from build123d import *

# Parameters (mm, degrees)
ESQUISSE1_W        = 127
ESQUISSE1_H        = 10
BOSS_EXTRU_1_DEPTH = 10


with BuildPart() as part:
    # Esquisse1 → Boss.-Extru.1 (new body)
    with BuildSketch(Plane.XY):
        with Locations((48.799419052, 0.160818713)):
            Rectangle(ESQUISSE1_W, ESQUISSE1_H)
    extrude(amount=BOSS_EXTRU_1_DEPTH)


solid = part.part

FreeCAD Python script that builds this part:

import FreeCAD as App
import Part
import Sketcher
from FreeCAD import Vector
Q = App.Units.Quantity

doc = App.newDocument("Part")
params = doc.addObject("Spreadsheet::Sheet", "Params")
for row, (alias, value) in enumerate([
    ("sketch1_width", "127 mm"),
    ("sketch1_height", "10 mm"),
    ("pad1_length", "10 mm"),
], start=1):
    params.set(f"A{row}", alias)
    params.set(f"B{row}", "=" + value)
    params.setAlias(f"B{row}", alias)

body = doc.addObject("PartDesign::Body", "Body")

sketch1 = body.newObject("Sketcher::SketchObject", "Sketch")
sketch1.AttachmentSupport = (doc.getObject("XY_Plane"), [""])
sketch1.MapMode = "FlatFace"
sketch1.addGeometry([
    Part.LineSegment(Vector(-14.700581, 5.160819, 0), Vector(-14.700581, -4.839181, 0)),
    Part.LineSegment(Vector(-14.700581, -4.839181, 0), Vector(112.299419, -4.839181, 0)),
    Part.LineSegment(Vector(112.299419, -4.839181, 0), Vector(112.299419, 5.160819, 0)),
    Part.LineSegment(Vector(112.299419, 5.160819, 0), Vector(-14.700581, 5.160819, 0)),
], False)
sketch1.addConstraint([
    Sketcher.Constraint("Coincident", 0, 2, 1, 1),
    Sketcher.Constraint("Coincident", 1, 2, 2, 1),
    Sketcher.Constraint("Coincident", 2, 2, 3, 1),
    Sketcher.Constraint("Coincident", 3, 2, 0, 1),
    Sketcher.Constraint("Vertical", 0),
    Sketcher.Constraint("Horizontal", 1),
    Sketcher.Constraint("Vertical", 2),
    Sketcher.Constraint("Horizontal", 3),
    Sketcher.Constraint("DistanceX", 1, 1, 1, 2, Q("127 mm")),
    Sketcher.Constraint("DistanceY", 0, 2, 0, 1, Q("10 mm")),
    Sketcher.Constraint("DistanceX", 0, 2, -1, 1, Q("14.700581 mm")),
    Sketcher.Constraint("DistanceY", 0, 2, -1, 1, Q("4.839181 mm")),
])
sketch1.setExpression("Constraints[8]", "Params.sketch1_width")
sketch1.setExpression("Constraints[9]", "Params.sketch1_height")
pad1 = body.newObject("PartDesign::Pad", "Pad")
pad1.Profile = sketch1
pad1.setExpression("Length", "Params.pad1_length")

doc.recompute()
